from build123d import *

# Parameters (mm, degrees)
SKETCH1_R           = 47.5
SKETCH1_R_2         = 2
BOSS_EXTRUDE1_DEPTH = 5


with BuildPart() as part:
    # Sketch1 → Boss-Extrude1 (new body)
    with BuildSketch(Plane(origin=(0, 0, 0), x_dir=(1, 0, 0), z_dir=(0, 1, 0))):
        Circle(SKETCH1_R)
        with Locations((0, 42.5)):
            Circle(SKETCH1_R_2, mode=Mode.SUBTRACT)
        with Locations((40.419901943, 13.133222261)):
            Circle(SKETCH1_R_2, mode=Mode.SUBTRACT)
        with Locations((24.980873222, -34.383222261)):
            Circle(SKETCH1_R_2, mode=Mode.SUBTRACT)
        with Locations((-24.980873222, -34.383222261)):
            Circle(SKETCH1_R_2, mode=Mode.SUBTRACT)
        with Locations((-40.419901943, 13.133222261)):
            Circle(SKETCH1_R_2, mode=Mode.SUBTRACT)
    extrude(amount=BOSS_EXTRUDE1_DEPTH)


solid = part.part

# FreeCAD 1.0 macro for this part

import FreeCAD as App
import Part
import Sketcher
Q = App.Units.Quantity

doc = App.newDocument("Part")
params = doc.addObject("Spreadsheet::Sheet", "Params")
for row, (alias, value) in enumerate([
    ("sketch1_diameter", "95 mm"),
    ("sketch1_diameter2", "4 mm"),
    ("pad1_length", "5 mm"),
], start=1):
    params.set(f"A{row}", alias)
    params.set(f"B{row}", "=" + value)
    params.setAlias(f"B{row}", alias)

body = doc.addObject("PartDesign::Body", "Body")

sketch1 = doc.addObject("Sketcher::SketchObject", "Sketch")
body.addObject(sketch1)
sketch1.AttachmentSupport = (doc.XZ_Plane, [""])
sketch1.MapMode = "FlatFace"
sketch1.addGeometry(Part.Circle(App.Vector(0, 0, 0), App.Vector(0, 0, 1), 47.5), False)
sketch1.addGeometry(Part.Circle(App.Vector(-25, 34.4, 0), App.Vector(0, 0, 1), 2), False)
sketch1.addGeometry(Part.Circle(App.Vector(25, 34.4, 0), App.Vector(0, 0, 1), 2), False)
sketch1.addGeometry(Part.Circle(App.Vector(-40.4, -13.1, 0), App.Vector(0, 0, 1), 2), False)
sketch1.addGeometry(Part.Circle(App.Vector(0, -42.5, 0), App.Vector(0, 0, 1), 2), False)
sketch1.addGeometry(Part.Circle(App.Vector(40.4, -13.1, 0), App.Vector(0, 0, 1), 2), False)
sketch1.addConstraint(Sketcher.Constraint("Coincident", 0, 3, -1, 1))
sketch1.addConstraint(Sketcher.Constraint("Equal", 1, 2))
sketch1.addConstraint(Sketcher.Constraint("Equal", 2, 3))
sketch1.addConstraint(Sketcher.Constraint("Equal", 3, 4))
sketch1.addConstraint(Sketcher.Constraint("Equal", 4, 5))
sketch1.addConstraint(Sketcher.Constraint("Symmetric", 1, 3, 2, 3, -2))
sketch1.addConstraint(Sketcher.Constraint("Symmetric", 3, 3, 5, 3, -2))
sketch1.addConstraint(Sketcher.Constraint("PointOnObject", 4, 3, -2))
sketch1.addConstraint(Sketcher.Constraint("Diameter", 0, Q("95 mm")))
sketch1.addConstraint(Sketcher.Constraint("Diameter", 1, Q("4 mm")))
sketch1.addConstraint(Sketcher.Constraint("DistanceY", 4, 3, -1, 1, Q("42.5 mm")))
sketch1.addConstraint(Sketcher.Constraint("DistanceX", 3, 3, -1, 1, Q("40.419902 mm")))
sketch1.addConstraint(Sketcher.Constraint("DistanceX", 3, 3, 1, 3, Q("15.439029 mm")))
sketch1.addConstraint(Sketcher.Constraint("DistanceY", -1, 1, 1, 3, Q("34.383222 mm")))
sketch1.addConstraint(Sketcher.Constraint("DistanceY", 3, 3, -1, 1, Q("13.133222 mm")))
sketch1.setExpression("Constraints[8]", "Params.sketch1_diameter")
sketch1.setExpression("Constraints[9]", "Params.sketch1_diameter2")
pad1 = doc.addObject("PartDesign::Pad", "Pad")
body.addObject(pad1)
pad1.Profile = sketch1
pad1.setExpression("Length", "Params.pad1_length")
pad1.Reversed = True

doc.recompute()
